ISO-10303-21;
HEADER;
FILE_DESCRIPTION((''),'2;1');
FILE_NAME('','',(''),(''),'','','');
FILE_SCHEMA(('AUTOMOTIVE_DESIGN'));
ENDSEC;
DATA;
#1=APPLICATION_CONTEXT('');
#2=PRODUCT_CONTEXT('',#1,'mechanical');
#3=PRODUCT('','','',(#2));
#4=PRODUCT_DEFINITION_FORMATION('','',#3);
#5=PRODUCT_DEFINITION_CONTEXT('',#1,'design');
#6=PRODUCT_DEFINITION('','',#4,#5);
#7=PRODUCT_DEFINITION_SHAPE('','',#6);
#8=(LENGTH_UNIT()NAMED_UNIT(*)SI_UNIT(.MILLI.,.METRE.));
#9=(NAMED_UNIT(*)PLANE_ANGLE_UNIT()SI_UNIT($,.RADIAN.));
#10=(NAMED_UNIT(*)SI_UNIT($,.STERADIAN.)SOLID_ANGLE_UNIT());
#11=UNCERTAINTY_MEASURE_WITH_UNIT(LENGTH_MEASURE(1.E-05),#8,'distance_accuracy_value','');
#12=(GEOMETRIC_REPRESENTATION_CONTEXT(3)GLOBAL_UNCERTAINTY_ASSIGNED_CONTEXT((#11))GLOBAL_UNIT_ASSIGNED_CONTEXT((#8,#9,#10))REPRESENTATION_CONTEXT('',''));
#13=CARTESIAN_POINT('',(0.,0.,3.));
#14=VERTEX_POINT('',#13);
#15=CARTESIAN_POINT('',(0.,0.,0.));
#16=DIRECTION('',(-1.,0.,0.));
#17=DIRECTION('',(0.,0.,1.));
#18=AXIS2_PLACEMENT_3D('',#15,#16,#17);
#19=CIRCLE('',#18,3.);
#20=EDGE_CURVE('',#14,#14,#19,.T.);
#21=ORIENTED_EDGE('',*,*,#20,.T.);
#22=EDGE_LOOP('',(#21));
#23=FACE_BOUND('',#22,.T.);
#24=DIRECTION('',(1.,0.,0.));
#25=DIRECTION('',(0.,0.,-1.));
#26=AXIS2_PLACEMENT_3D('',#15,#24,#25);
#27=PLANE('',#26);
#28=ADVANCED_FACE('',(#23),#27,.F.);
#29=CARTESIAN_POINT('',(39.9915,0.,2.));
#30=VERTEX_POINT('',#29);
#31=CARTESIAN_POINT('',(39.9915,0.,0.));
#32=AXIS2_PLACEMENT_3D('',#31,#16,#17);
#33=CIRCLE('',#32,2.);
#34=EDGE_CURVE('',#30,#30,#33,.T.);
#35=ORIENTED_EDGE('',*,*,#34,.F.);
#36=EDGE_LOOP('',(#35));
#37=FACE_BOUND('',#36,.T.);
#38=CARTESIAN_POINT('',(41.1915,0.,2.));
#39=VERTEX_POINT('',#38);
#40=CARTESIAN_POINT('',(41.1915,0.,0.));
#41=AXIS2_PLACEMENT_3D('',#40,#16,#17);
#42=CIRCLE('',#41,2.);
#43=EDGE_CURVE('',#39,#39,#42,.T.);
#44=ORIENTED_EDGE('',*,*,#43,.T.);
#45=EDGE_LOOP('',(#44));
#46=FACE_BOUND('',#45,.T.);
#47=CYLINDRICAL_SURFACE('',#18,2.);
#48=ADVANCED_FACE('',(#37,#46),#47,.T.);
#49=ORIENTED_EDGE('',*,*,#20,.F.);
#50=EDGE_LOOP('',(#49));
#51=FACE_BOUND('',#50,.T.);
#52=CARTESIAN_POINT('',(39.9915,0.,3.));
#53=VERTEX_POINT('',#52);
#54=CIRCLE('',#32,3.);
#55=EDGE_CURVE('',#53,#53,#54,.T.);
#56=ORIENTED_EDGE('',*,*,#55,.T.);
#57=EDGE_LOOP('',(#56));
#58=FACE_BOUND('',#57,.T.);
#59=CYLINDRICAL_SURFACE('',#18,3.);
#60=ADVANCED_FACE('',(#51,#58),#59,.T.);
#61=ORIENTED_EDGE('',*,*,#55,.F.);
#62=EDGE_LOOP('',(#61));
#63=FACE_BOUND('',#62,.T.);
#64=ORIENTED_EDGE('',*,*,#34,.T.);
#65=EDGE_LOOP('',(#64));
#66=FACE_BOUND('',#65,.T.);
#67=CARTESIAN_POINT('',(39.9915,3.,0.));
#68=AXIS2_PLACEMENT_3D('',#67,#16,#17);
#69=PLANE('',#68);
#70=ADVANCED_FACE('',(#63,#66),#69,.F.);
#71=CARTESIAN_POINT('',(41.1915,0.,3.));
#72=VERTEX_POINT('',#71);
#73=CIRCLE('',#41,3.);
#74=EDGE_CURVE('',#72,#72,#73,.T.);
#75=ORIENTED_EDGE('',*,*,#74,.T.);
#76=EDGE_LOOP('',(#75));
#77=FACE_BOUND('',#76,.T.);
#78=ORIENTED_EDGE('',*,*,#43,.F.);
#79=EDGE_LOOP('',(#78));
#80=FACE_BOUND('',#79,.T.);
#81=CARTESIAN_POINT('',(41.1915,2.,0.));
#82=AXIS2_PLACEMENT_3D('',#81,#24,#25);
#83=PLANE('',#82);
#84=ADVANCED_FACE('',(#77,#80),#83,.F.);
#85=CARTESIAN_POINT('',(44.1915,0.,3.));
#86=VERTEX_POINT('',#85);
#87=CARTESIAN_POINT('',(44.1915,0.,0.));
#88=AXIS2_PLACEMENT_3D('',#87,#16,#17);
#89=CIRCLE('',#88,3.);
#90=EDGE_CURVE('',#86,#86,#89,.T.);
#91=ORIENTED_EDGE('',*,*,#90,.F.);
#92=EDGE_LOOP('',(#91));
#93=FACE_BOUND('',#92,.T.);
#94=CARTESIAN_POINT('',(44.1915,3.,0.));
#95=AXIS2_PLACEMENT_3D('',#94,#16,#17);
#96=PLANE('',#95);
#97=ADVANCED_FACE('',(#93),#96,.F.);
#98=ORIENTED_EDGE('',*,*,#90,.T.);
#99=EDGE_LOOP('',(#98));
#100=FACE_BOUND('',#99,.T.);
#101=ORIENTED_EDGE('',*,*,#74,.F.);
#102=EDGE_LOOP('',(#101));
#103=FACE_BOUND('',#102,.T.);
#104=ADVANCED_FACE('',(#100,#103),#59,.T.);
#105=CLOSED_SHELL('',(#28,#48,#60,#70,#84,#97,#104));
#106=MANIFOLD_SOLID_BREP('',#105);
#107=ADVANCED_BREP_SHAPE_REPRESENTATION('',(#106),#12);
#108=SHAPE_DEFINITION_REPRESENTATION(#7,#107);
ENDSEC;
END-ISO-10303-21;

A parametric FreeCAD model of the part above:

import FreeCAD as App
import Part
import Sketcher
Q = App.Units.Quantity


def add_polygon(sketch, points):
    """Adds a closed chain of lines whose ends are joined by coincident constraints."""
    first, n = sketch.GeometryCount, len(points)
    for a, b in zip(points, points[1:] + points[:1]):
        sketch.addGeometry(Part.LineSegment(App.Vector(*a, 0), App.Vector(*b, 0)), False)
    for i in range(n):
        sketch.addConstraint(Sketcher.Constraint("Coincident", first + i, 2, first + (i + 1) % n, 1))

doc = App.newDocument("Part")
body = doc.addObject("PartDesign::Body", "Body")

# Sketch on XY plane
sketch1 = body.newObject("Sketcher::SketchObject", "Sketch")
sketch1.AttachmentSupport = (doc.getObject("XY_Plane"), [""])
sketch1.MapMode = "FlatFace"
add_polygon(sketch1, [(0, 3), (0, 0), (44.2, 0), (44.2, 3), (41.2, 3), (41.2, 2), (40, 2), (40, 3)])  # lines 0-7
sketch1.addConstraint(Sketcher.Constraint("Vertical", 0))
sketch1.addConstraint(Sketcher.Constraint("Horizontal", 1))
sketch1.addConstraint(Sketcher.Constraint("Vertical", 2))
sketch1.addConstraint(Sketcher.Constraint("Horizontal", 3))
sketch1.addConstraint(Sketcher.Constraint("Vertical", 4))
sketch1.addConstraint(Sketcher.Constraint("Horizontal", 5))
sketch1.addConstraint(Sketcher.Constraint("Vertical", 6))
sketch1.addConstraint(Sketcher.Constraint("Horizontal", 7))
sketch1.addConstraint(Sketcher.Constraint("Coincident", 0, 2, -1, 1))
sketch1.addConstraint(Sketcher.Constraint("Horizontal", 3, 2, 6, 2))
sketch1.addConstraint(Sketcher.Constraint("Equal", 3, 0))
sketch1.addConstraint(Sketcher.Constraint("DistanceX", 3, 2, 3, 1, Q("3 mm")))
sketch1.addConstraint(Sketcher.Constraint("DistanceY", 4, 2, 4, 1, Q("1 mm")))
sketch1.addConstraint(Sketcher.Constraint("DistanceX", 5, 2, 5, 1, Q("1.2 mm")))
sketch1.addConstraint(Sketcher.Constraint("DistanceX", 1, 1, 1, 2, Q("44.1915 mm")))
revolution = body.newObject("PartDesign::Revolution", "Revolution")
revolution.Profile = sketch1
revolution.ReferenceAxis = (sketch1, ["H_Axis"])
revolution.Angle = 360

doc.recompute()
